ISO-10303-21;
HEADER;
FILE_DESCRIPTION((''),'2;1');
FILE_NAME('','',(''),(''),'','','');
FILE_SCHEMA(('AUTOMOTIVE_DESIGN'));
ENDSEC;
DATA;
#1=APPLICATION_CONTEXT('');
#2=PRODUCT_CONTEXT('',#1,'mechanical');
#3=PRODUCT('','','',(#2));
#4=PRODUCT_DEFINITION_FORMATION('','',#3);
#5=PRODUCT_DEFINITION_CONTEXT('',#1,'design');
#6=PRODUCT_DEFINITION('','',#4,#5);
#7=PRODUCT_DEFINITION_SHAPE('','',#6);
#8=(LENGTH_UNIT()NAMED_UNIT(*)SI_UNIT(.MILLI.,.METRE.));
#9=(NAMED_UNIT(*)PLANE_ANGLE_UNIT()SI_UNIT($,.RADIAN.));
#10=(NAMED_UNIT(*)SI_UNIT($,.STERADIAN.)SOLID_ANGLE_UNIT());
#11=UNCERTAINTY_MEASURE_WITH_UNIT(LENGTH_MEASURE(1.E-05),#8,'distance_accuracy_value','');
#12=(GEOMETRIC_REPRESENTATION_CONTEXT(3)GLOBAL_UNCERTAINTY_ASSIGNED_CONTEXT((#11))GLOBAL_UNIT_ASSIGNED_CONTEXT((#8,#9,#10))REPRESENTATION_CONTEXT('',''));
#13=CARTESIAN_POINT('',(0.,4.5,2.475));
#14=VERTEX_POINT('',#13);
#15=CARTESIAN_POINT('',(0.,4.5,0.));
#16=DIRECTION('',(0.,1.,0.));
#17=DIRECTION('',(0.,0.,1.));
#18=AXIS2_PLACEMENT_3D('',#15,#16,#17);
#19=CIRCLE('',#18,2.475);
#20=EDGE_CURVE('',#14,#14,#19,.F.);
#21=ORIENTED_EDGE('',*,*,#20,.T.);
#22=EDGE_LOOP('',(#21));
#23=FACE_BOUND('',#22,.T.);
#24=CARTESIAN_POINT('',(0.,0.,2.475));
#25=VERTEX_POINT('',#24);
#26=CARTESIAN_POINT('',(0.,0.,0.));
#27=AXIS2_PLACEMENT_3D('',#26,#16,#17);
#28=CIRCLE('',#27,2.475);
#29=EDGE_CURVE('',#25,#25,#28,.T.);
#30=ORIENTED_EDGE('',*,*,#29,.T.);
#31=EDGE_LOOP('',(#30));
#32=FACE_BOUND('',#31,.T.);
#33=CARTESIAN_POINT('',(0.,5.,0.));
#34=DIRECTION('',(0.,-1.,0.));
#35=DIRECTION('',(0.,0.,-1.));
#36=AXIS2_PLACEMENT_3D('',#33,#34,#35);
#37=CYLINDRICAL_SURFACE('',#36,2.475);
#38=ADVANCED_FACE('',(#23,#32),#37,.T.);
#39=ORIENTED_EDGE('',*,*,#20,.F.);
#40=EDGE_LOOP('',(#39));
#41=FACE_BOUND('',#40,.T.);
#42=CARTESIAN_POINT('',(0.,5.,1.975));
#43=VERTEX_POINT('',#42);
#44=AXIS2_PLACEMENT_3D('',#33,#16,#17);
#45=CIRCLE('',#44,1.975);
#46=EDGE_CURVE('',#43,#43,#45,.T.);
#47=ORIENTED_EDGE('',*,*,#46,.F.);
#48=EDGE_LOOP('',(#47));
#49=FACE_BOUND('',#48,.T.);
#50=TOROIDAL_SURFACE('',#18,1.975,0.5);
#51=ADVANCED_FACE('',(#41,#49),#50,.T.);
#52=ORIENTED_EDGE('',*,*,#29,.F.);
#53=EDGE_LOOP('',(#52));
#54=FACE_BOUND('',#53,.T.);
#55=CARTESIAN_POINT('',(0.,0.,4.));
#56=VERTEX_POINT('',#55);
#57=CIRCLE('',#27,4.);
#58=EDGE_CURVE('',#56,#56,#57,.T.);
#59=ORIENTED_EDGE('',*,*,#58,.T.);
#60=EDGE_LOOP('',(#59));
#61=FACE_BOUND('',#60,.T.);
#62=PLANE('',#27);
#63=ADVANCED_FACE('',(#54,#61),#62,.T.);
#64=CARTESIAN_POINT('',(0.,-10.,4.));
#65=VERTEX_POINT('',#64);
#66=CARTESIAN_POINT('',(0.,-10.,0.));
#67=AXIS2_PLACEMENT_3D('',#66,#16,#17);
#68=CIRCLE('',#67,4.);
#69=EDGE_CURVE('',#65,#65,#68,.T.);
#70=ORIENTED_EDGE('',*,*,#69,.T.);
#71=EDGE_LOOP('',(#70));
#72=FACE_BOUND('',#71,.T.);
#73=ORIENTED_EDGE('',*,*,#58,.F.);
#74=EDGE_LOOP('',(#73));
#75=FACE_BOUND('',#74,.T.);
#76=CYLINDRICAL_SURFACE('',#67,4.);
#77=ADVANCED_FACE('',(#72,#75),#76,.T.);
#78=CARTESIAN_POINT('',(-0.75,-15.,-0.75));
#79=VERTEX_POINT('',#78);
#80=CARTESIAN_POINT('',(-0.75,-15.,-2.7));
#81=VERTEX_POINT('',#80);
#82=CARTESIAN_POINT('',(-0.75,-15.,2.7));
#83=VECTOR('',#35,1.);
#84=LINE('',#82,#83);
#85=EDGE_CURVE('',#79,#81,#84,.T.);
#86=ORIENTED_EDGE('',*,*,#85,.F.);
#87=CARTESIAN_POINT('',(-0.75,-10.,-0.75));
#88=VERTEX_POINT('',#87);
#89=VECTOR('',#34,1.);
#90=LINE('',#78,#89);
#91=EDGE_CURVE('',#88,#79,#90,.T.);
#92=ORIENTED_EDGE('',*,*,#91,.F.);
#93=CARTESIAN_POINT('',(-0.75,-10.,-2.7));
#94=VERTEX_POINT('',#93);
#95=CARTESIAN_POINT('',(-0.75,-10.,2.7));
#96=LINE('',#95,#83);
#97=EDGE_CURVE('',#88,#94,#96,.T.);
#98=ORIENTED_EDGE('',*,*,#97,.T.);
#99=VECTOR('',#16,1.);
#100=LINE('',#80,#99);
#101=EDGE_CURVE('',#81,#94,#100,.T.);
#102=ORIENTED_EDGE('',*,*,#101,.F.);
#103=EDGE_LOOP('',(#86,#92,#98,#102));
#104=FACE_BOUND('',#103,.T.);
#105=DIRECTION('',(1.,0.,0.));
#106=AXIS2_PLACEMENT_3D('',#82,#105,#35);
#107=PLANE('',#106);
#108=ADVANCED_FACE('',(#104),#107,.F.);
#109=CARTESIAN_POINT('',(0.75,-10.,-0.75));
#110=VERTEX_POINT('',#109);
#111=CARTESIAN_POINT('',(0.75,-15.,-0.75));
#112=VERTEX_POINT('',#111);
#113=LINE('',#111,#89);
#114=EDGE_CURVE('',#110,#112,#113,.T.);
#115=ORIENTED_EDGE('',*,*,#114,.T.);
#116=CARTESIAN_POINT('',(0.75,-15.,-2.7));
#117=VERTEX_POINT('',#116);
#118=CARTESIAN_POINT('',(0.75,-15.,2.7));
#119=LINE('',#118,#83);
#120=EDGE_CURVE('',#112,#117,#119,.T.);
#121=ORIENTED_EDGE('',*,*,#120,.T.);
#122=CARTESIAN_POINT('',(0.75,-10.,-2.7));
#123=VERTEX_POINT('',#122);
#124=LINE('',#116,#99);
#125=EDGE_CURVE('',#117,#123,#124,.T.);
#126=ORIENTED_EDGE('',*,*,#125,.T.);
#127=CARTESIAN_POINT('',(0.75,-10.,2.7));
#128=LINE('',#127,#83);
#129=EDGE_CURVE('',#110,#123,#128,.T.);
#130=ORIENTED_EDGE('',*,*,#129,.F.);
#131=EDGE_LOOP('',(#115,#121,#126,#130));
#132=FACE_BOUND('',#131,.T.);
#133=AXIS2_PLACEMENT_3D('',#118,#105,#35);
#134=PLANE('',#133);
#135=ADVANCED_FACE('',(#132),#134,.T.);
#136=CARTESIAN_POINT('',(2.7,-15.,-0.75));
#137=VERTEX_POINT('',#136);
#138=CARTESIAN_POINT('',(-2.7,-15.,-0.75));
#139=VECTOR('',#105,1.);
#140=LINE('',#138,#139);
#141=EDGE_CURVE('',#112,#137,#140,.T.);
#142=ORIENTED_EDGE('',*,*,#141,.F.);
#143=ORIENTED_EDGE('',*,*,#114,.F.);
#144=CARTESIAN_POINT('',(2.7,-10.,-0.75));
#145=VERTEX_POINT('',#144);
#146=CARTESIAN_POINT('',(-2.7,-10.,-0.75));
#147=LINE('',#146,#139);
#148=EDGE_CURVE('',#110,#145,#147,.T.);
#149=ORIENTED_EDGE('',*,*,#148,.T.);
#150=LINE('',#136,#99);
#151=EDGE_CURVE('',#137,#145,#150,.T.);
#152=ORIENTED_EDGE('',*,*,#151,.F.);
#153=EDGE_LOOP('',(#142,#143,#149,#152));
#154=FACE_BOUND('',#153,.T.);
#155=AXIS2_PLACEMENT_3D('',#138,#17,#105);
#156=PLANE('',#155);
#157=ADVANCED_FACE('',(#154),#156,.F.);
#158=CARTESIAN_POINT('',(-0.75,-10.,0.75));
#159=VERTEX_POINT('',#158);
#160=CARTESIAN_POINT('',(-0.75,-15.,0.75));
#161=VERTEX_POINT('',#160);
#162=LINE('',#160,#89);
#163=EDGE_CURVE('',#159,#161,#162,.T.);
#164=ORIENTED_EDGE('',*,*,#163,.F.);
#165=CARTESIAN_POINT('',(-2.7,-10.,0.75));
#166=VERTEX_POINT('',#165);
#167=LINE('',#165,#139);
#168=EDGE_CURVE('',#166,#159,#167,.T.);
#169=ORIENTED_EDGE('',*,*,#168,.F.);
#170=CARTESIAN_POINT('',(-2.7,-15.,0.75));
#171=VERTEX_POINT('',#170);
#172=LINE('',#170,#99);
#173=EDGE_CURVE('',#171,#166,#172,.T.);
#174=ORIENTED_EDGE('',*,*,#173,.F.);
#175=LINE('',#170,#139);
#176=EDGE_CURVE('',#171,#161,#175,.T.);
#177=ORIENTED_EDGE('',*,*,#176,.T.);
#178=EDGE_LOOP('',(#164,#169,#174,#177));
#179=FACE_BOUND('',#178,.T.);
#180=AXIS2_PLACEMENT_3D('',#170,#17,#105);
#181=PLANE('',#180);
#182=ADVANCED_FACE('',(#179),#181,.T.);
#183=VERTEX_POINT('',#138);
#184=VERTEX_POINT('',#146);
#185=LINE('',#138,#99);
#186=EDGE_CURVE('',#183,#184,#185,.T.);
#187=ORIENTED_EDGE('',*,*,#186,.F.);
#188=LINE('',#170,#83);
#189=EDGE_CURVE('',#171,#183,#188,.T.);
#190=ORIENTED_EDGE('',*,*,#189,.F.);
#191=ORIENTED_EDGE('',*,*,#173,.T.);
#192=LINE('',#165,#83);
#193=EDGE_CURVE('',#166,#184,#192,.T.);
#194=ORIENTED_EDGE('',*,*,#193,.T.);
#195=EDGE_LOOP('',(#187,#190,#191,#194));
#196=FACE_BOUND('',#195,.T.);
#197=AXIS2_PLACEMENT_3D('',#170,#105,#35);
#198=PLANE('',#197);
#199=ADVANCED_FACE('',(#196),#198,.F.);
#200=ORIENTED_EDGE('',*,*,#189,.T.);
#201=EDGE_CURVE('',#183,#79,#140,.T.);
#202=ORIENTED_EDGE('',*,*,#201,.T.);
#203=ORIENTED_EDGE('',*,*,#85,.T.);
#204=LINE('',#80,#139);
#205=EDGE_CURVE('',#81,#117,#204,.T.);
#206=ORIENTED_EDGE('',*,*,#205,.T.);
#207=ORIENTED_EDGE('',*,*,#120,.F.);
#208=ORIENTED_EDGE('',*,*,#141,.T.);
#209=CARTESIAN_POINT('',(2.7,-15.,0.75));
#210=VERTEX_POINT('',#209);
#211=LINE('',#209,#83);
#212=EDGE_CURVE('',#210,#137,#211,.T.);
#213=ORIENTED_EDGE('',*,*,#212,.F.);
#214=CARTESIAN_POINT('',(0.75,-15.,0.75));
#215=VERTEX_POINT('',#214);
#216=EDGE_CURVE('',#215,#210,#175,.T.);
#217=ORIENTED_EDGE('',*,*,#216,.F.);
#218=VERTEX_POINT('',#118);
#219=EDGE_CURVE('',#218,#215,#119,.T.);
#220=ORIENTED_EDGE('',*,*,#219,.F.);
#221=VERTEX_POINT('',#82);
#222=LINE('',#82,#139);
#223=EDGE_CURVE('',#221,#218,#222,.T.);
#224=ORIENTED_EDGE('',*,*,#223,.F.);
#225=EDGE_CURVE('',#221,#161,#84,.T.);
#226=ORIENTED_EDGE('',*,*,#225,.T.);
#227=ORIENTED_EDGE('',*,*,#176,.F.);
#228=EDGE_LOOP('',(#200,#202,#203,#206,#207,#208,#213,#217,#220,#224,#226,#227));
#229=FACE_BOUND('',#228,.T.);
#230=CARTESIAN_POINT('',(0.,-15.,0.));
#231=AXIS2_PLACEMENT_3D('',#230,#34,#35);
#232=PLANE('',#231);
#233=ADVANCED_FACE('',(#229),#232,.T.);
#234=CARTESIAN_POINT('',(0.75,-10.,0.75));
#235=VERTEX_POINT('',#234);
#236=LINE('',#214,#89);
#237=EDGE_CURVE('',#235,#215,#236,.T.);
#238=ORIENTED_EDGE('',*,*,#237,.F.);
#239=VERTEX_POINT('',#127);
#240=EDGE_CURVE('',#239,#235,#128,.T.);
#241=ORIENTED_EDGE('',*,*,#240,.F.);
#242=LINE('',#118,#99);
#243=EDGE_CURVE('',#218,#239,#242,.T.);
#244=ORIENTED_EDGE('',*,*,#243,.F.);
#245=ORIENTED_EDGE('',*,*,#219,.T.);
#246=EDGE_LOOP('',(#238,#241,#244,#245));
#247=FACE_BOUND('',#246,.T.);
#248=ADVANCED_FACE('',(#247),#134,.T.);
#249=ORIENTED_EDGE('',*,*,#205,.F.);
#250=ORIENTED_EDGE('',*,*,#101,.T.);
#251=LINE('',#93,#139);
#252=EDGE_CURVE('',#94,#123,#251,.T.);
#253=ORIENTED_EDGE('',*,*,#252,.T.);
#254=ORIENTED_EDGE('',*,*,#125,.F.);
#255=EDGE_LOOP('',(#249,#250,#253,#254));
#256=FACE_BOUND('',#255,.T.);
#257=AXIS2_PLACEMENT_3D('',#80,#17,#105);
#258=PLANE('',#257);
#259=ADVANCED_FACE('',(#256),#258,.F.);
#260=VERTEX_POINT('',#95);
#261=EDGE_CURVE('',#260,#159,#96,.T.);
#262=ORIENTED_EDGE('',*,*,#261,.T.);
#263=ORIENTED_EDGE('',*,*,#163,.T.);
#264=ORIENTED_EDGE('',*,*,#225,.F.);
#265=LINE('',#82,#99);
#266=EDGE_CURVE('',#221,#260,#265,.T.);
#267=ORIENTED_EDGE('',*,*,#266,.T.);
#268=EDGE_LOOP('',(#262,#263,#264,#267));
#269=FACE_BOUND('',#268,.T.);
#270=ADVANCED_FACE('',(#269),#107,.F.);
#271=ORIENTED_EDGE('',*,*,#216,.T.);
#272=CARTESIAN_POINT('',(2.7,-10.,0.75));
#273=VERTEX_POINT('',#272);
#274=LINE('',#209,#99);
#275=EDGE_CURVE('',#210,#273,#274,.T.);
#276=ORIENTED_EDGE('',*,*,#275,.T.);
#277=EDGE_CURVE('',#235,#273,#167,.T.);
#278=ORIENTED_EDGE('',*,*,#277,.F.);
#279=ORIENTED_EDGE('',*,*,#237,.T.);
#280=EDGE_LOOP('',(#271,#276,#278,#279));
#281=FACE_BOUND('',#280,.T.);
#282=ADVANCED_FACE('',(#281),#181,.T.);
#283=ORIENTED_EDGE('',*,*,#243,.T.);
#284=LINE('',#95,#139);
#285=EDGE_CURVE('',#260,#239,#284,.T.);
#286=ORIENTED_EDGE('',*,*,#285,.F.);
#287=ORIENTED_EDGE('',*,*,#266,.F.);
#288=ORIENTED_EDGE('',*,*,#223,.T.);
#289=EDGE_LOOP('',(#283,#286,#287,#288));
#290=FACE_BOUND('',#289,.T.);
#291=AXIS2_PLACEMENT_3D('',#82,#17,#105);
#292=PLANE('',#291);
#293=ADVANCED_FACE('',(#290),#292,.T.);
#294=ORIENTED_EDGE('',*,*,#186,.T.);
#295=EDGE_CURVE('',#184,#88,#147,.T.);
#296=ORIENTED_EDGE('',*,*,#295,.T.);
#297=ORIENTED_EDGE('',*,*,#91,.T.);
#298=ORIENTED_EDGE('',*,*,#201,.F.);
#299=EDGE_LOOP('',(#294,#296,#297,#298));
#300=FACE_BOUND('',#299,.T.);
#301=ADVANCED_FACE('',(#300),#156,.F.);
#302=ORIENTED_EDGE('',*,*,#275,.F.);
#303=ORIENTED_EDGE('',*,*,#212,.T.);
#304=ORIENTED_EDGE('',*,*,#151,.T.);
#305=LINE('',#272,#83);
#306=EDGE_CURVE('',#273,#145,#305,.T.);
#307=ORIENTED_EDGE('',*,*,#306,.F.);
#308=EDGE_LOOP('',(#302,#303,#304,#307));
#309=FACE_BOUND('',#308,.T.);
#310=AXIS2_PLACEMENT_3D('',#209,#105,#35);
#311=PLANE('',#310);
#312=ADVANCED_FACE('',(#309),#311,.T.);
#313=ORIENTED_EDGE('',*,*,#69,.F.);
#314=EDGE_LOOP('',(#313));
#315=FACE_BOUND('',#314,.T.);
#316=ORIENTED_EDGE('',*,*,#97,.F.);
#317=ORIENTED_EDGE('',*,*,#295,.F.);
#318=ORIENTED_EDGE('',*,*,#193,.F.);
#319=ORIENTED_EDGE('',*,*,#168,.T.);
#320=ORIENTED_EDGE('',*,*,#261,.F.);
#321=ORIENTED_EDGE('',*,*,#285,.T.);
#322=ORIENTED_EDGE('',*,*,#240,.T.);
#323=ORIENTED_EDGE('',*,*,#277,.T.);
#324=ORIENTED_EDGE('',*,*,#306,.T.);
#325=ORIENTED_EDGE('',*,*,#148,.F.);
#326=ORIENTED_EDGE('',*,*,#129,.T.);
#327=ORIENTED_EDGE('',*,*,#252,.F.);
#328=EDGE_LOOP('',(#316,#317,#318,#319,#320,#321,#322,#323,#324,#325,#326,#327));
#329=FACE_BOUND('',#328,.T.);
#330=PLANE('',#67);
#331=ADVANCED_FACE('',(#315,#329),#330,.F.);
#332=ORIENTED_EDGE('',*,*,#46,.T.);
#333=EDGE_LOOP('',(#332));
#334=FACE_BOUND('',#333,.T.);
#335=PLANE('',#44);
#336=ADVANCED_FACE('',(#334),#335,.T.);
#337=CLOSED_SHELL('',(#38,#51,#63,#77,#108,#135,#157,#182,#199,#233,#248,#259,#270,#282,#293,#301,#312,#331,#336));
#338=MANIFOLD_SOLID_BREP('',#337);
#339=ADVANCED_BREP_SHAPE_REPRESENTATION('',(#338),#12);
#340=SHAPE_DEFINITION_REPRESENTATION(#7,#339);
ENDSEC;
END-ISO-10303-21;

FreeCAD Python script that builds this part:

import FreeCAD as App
import Part
import Sketcher


def edges_at(feature, points):
    """Names of the edges that pass closest to the given points."""
    edges = feature.Shape.Edges
    near = lambda p: min(range(len(edges)), key=lambda i: edges[i].distToShape(Part.Vertex(*p))[0])
    return sorted({f"Edge{near(p) + 1}" for p in points})


def add_polygon(sketch, points):
    """Adds a closed chain of lines whose ends are joined by coincident constraints."""
    first, n = sketch.GeometryCount, len(points)
    for a, b in zip(points, points[1:] + points[:1]):
        sketch.addGeometry(Part.LineSegment(App.Vector(*a, 0), App.Vector(*b, 0)), False)
    for i in range(n):
        sketch.addConstraint(Sketcher.Constraint("Coincident", first + i, 2, first + (i + 1) % n, 1))

doc = App.newDocument("Part")
body = doc.addObject("PartDesign::Body", "Body")

# Sketch on XZ plane
sketch1 = body.newObject("Sketcher::SketchObject", "Sketch")
sketch1.AttachmentSupport = (doc.getObject("XZ_Plane"), [""])
sketch1.MapMode = "FlatFace"
sketch1.addGeometry(Part.Circle(App.Vector(0, 0, 0), App.Vector(0, 0, 1), 4), False)
sketch1.addConstraint([
    Sketcher.Constraint("Coincident", 0, 3, -1, 1),
    Sketcher.Constraint("Diameter", 0, 8.0),
])
pad1 = body.newObject("PartDesign::Pad", "Pad")
pad1.Profile = sketch1
pad1.Length = 10

# Sketch on XZ plane
sketch2 = body.newObject("Sketcher::SketchObject", "Sketch001")
sketch2.AttachmentSupport = (doc.getObject("XZ_Plane"), [""])
sketch2.MapMode = "FlatFace"
sketch2.addGeometry(Part.Circle(App.Vector(0, 0, 0), App.Vector(0, 0, 1), 2.475), False)
sketch2.addConstraint([
    Sketcher.Constraint("Coincident", 0, 3, -1, 1),
    Sketcher.Constraint("Diameter", 0, 4.95),
])
pad2 = body.newObject("PartDesign::Pad", "Pad001")
pad2.Profile = sketch2
pad2.Length = 5
pad2.Reversed = True

# Sketch on XZ plane
sketch3 = body.newObject("Sketcher::SketchObject", "Sketch002")
sketch3.AttachmentSupport = (doc.getObject("XZ_Plane"), [""])
sketch3.MapMode = "FlatFace"
sketch3.AttachmentOffset = App.Placement(App.Vector(0, 0, 10), App.Rotation())
add_polygon(sketch3, [(-0.75, -0.75), (-0.75, -2.7), (0.75, -2.7), (0.75, -0.75), (2.7, -0.75), (2.7, 0.75), (0.75, 0.75), (0.75, 2.7), (-0.75, 2.7), (-0.75, 0.75), (-2.7, 0.75), (-2.7, -0.75)])  # lines 0-11
sketch3.addConstraint([
    Sketcher.Constraint("Vertical", 0),
    Sketcher.Constraint("Horizontal", 1),
    Sketcher.Constraint("Vertical", 2),
    Sketcher.Constraint("Horizontal", 3),
    Sketcher.Constraint("Vertical", 4),
    Sketcher.Constraint("Horizontal", 5),
    Sketcher.Constraint("Vertical", 6),
    Sketcher.Constraint("Horizontal", 7),
    Sketcher.Constraint("Vertical", 8),
    Sketcher.Constraint("Horizontal", 9),
    Sketcher.Constraint("Vertical", 10),
    Sketcher.Constraint("Horizontal", 11),
    Sketcher.Constraint("Symmetric", 0, 2, 6, 2, -1, 1),
    Sketcher.Constraint("Symmetric", 2, 2, 8, 2, -1, 1),
    Sketcher.Constraint("Symmetric", 4, 2, 10, 2, -1, 1),
    Sketcher.Constraint("Symmetric", 5, 2, 8, 2, -2),
    Sketcher.Constraint("Equal", 11, 0),
    Sketcher.Constraint("Equal", 7, 4),
    Sketcher.Constraint("DistanceX", 1, 1, 1, 2, 1.5),
    Sketcher.Constraint("DistanceX", 3, 1, 3, 2, 1.95),
])
pad3 = body.newObject("PartDesign::Pad", "Pad002")
pad3.Profile = sketch3
pad3.Length = 5
doc.recompute()

fillet = body.newObject("PartDesign::Fillet", "Fillet")
fillet.Base = (pad3, edges_at(pad3, [(-2.475, 5, 0)]))
fillet.Radius = 0.5

doc.recompute()
